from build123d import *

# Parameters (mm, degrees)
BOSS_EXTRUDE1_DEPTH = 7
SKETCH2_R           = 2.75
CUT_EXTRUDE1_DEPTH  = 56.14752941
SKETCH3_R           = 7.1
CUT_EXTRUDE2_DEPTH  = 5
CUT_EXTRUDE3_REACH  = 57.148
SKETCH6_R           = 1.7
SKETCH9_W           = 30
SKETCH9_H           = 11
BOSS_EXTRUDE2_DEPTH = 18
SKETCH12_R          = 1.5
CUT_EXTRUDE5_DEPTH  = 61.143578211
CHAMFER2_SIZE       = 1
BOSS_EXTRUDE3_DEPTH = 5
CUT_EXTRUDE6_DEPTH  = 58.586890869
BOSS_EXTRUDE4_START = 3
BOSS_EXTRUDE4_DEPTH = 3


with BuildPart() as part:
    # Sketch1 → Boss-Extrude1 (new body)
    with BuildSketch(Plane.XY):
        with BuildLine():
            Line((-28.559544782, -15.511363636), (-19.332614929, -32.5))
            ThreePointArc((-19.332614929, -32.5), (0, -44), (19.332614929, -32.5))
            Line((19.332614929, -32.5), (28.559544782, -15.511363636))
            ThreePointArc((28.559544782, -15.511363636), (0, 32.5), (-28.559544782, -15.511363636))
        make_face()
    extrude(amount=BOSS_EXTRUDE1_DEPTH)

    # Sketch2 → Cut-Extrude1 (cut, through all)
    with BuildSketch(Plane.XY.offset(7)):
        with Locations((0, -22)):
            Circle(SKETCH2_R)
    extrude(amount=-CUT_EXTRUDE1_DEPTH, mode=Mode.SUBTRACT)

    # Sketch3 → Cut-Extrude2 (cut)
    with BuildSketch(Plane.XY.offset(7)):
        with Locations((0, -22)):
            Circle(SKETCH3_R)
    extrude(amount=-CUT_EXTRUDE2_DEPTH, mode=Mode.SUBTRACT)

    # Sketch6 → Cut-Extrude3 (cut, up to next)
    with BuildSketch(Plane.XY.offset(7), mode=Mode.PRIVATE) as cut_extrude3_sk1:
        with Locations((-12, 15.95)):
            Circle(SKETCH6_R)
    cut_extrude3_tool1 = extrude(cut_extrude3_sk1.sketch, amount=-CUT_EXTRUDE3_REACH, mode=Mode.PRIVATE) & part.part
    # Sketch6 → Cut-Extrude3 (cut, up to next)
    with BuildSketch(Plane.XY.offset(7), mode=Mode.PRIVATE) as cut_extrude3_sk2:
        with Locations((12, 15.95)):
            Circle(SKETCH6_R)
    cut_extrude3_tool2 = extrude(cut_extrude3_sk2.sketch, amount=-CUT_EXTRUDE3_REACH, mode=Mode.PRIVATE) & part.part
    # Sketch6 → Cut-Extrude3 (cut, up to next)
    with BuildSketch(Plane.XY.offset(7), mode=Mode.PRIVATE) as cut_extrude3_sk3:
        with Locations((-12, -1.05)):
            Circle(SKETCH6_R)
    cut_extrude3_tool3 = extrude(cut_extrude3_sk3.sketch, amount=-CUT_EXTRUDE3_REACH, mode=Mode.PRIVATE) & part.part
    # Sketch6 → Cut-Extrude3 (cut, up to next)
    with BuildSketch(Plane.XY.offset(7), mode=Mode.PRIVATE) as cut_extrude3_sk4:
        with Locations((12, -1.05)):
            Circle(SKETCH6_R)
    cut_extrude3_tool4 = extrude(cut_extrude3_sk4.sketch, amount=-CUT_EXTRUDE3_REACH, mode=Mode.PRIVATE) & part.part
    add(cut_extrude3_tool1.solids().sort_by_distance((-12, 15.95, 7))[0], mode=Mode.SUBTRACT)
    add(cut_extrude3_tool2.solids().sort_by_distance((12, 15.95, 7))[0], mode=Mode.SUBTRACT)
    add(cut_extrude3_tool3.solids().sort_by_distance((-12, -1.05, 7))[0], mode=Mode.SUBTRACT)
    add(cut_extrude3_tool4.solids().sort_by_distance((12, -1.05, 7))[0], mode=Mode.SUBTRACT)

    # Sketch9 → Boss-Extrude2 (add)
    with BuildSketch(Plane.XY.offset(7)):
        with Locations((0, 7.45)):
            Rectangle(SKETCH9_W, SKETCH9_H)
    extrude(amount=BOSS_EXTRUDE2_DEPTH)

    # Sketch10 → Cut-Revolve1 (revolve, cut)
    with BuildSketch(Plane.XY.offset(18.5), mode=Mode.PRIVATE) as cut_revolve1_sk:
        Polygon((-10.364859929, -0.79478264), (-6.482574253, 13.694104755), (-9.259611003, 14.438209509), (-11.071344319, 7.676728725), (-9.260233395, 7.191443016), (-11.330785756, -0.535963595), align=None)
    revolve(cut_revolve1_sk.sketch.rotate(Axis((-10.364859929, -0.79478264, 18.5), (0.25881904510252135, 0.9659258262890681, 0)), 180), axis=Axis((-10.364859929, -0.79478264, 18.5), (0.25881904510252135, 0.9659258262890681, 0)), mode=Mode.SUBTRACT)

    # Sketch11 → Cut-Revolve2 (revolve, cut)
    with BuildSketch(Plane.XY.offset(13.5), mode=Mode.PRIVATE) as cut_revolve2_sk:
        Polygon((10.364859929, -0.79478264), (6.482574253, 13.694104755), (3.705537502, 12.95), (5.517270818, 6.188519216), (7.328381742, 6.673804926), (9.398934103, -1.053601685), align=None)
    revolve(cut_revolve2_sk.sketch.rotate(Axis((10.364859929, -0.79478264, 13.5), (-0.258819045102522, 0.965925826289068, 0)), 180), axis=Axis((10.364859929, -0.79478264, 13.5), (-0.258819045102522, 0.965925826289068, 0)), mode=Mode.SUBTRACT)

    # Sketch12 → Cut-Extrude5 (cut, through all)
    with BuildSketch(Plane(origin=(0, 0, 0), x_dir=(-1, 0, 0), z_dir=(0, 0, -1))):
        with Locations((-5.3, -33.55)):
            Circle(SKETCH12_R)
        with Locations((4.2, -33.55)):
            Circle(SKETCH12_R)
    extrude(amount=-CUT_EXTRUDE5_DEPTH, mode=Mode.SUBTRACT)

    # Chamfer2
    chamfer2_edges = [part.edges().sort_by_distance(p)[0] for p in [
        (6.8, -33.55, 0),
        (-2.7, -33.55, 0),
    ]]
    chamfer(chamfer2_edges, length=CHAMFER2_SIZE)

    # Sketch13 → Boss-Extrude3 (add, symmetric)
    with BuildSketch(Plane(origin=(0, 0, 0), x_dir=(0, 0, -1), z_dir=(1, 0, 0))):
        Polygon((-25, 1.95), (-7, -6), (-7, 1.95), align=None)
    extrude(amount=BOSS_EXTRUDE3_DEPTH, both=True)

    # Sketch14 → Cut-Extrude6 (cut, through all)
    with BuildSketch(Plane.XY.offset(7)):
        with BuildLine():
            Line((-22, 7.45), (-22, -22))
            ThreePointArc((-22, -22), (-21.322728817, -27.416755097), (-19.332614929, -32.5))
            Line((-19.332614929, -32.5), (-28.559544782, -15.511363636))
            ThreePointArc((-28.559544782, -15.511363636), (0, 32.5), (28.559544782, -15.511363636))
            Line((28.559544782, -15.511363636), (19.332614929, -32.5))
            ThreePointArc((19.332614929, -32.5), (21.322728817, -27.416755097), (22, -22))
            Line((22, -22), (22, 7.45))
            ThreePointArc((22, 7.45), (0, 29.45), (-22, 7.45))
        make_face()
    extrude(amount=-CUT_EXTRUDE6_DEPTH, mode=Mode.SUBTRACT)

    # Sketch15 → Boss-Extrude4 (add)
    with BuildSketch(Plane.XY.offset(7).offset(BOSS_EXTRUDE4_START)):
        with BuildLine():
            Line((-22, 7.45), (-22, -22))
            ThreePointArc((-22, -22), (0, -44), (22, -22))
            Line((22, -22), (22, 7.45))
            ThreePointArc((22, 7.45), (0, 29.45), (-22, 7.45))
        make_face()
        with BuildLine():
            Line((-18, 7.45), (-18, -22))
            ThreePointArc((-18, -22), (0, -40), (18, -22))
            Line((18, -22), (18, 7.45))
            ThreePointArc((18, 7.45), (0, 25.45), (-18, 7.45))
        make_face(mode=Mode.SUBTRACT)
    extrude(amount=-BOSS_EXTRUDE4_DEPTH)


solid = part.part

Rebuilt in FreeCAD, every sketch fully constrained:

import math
import FreeCAD as App
import Part
import Sketcher

V = App.Vector
Q = App.Units.Quantity


def edges_at(feature, points):
    """Names of the edges that pass closest to the given points."""
    edges = feature.Shape.Edges
    near = lambda p: min(range(len(edges)), key=lambda i: edges[i].distToShape(Part.Vertex(*p))[0])
    return sorted({f"Edge{near(p) + 1}" for p in points})

doc = App.newDocument("Part")
body = doc.addObject("PartDesign::Body", "Body")

sketch1 = body.newObject("Sketcher::SketchObject", "Sketch")
sketch1.AttachmentSupport = (doc.getObject("XY_Plane"), [""])
sketch1.MapMode = "FlatFace"
sketch1.addGeometry([
    Part.LineSegment(V(-29, -16, 0), V(-19, -32, 0)),
    Part.ArcOfCircle(Part.Circle(V(0, -22, 0), V(0, 0, 1), 22), math.radians(-151), math.radians(-29)),
    Part.LineSegment(V(19, -32, 0), V(29, -16, 0)),
    Part.ArcOfCircle(Part.Circle(V(0, 0, 0), V(0, 0, 1), 32), math.radians(-29), math.radians(209)),
], False)
sketch1.addConstraint([
    Sketcher.Constraint("Tangent", 0, 2, 1, 1),
    Sketcher.Constraint("Tangent", 1, 2, 2, 1),
    Sketcher.Constraint("Tangent", 2, 2, 3, 1),
    Sketcher.Constraint("Tangent", 3, 2, 0, 1),
    Sketcher.Constraint("Coincident", 3, 3, -1, 1),
    Sketcher.Constraint("PointOnObject", 1, 3, -2),
    Sketcher.Constraint("Radius", 1, 22.0),
    Sketcher.Constraint("Radius", 3, 32.5),
    Sketcher.Constraint("DistanceY", 1, 3, -1, 1, 22.0),
])
pad1 = body.newObject("PartDesign::Pad", "Pad")
pad1.Profile = sketch1
pad1.Length = 7

sketch2 = body.newObject("Sketcher::SketchObject", "Sketch001")
sketch2.AttachmentSupport = (doc.getObject("XY_Plane"), [""])
sketch2.MapMode = "FlatFace"
sketch2.AttachmentOffset = App.Placement(V(0, 0, 7), App.Rotation())
sketch2.addGeometry(Part.Circle(V(0, -22, 0), V(0, 0, 1), 2.8), False)
sketch2.addConstraint([
    Sketcher.Constraint("PointOnObject", 0, 3, -2),
    Sketcher.Constraint("Diameter", 0, 5.5),
    Sketcher.Constraint("DistanceY", 0, 3, -1, 1, 22.0),
])
pocket1 = body.newObject("PartDesign::Pocket", "Pocket")
pocket1.Profile = sketch2
pocket1.Type = "ThroughAll"

sketch3 = body.newObject("Sketcher::SketchObject", "Sketch002")
sketch3.AttachmentSupport = (doc.getObject("XY_Plane"), [""])
sketch3.MapMode = "FlatFace"
sketch3.AttachmentOffset = App.Placement(V(0, 0, 7), App.Rotation())
sketch3.addGeometry(Part.Circle(V(0, -22, 0), V(0, 0, 1), 7), False)
sketch3.addConstraint([
    Sketcher.Constraint("PointOnObject", 0, 3, -2),
    Sketcher.Constraint("Diameter", 0, 14.2),
    Sketcher.Constraint("DistanceY", 0, 3, -1, 1, 22.0),
])
pocket2 = body.newObject("PartDesign::Pocket", "Pocket001")
pocket2.Profile = sketch3
pocket2.Length = 5

sketch4 = body.newObject("Sketcher::SketchObject", "Sketch003")
sketch4.AttachmentSupport = (doc.getObject("XY_Plane"), [""])
sketch4.MapMode = "FlatFace"
sketch4.AttachmentOffset = App.Placement(V(0, 0, 7), App.Rotation())
sketch4.addGeometry(Part.Circle(V(-12, 15.9, 0), V(0, 0, 1), 1.7), False)
sketch4.addConstraint([
    Sketcher.Constraint("Diameter", 0, 3.4),
    Sketcher.Constraint("DistanceX", 0, 3, -1, 1, 12.0),
    Sketcher.Constraint("DistanceY", -1, 1, 0, 3, 15.95),
])
pocket3 = body.newObject("PartDesign::Pocket", "Pocket002")
pocket3.Profile = sketch4
pocket3.Type = "UpToFirst"

sketch5 = body.newObject("Sketcher::SketchObject", "Sketch004")
sketch5.AttachmentSupport = (doc.getObject("XY_Plane"), [""])
sketch5.MapMode = "FlatFace"
sketch5.AttachmentOffset = App.Placement(V(0, 0, 7), App.Rotation())
sketch5.addGeometry(Part.Circle(V(12, 15.9, 0), V(0, 0, 1), 1.7), False)
sketch5.addConstraint([
    Sketcher.Constraint("Diameter", 0, 3.4),
    Sketcher.Constraint("DistanceX", -1, 1, 0, 3, 12.0),
    Sketcher.Constraint("DistanceY", -1, 1, 0, 3, 15.95),
])
pocket4 = body.newObject("PartDesign::Pocket", "Pocket003")
pocket4.Profile = sketch5
pocket4.Type = "UpToFirst"

sketch6 = body.newObject("Sketcher::SketchObject", "Sketch005")
sketch6.AttachmentSupport = (doc.getObject("XY_Plane"), [""])
sketch6.MapMode = "FlatFace"
sketch6.AttachmentOffset = App.Placement(V(0, 0, 7), App.Rotation())
sketch6.addGeometry(Part.Circle(V(-12, -1.1, 0), V(0, 0, 1), 1.7), False)
sketch6.addConstraint([
    Sketcher.Constraint("Diameter", 0, 3.4),
    Sketcher.Constraint("DistanceX", 0, 3, -1, 1, 12.0),
    Sketcher.Constraint("DistanceY", 0, 3, -1, 1, 1.05),
])
pocket5 = body.newObject("PartDesign::Pocket", "Pocket004")
pocket5.Profile = sketch6
pocket5.Type = "UpToFirst"

sketch7 = body.newObject("Sketcher::SketchObject", "Sketch006")
sketch7.AttachmentSupport = (doc.getObject("XY_Plane"), [""])
sketch7.MapMode = "FlatFace"
sketch7.AttachmentOffset = App.Placement(V(0, 0, 7), App.Rotation())
sketch7.addGeometry(Part.Circle(V(12, -1.1, 0), V(0, 0, 1), 1.7), False)
sketch7.addConstraint([
    Sketcher.Constraint("Diameter", 0, 3.4),
    Sketcher.Constraint("DistanceX", -1, 1, 0, 3, 12.0),
    Sketcher.Constraint("DistanceY", 0, 3, -1, 1, 1.05),
])
pocket6 = body.newObject("PartDesign::Pocket", "Pocket005")
pocket6.Profile = sketch7
pocket6.Type = "UpToFirst"

sketch8 = body.newObject("Sketcher::SketchObject", "Sketch007")
sketch8.AttachmentSupport = (doc.getObject("XY_Plane"), [""])
sketch8.MapMode = "FlatFace"
sketch8.AttachmentOffset = App.Placement(V(0, 0, 7), App.Rotation())
sketch8.addGeometry([
    Part.LineSegment(V(-15, 13, 0), V(-15, 2, 0)),
    Part.LineSegment(V(-15, 2, 0), V(15, 2, 0)),
    Part.LineSegment(V(15, 2, 0), V(15, 13, 0)),
    Part.LineSegment(V(15, 13, 0), V(-15, 13, 0)),
], False)
sketch8.addConstraint([
    Sketcher.Constraint("Coincident", 0, 2, 1, 1),
    Sketcher.Constraint("Coincident", 1, 2, 2, 1),
    Sketcher.Constraint("Coincident", 2, 2, 3, 1),
    Sketcher.Constraint("Coincident", 3, 2, 0, 1),
    Sketcher.Constraint("Vertical", 0),
    Sketcher.Constraint("Horizontal", 1),
    Sketcher.Constraint("Vertical", 2),
    Sketcher.Constraint("Horizontal", 3),
    Sketcher.Constraint("DistanceX", 1, 1, 1, 2, 30.0),
    Sketcher.Constraint("DistanceY", 0, 2, 0, 1, 11.0),
    Sketcher.Constraint("DistanceX", 0, 2, -1, 1, 15.0),
    Sketcher.Constraint("DistanceY", -1, 1, 0, 2, 1.95),
])
pad2 = body.newObject("PartDesign::Pad", "Pad001")
pad2.Profile = sketch8
pad2.Length = 18

sketch9 = body.newObject("Sketcher::SketchObject", "Sketch008")
sketch9.AttachmentSupport = (doc.getObject("XY_Plane"), [""])
sketch9.MapMode = "FlatFace"
sketch9.AttachmentOffset = App.Placement(V(0, 0, 18.5), App.Rotation())
sketch9.addGeometry([
    Part.LineSegment(V(-10.4, -0.8, 0), V(-6.5, 13.7, 0)),
    Part.LineSegment(V(-6.5, 13.7, 0), V(-9.3, 14.4, 0)),
    Part.LineSegment(V(-9.3, 14.4, 0), V(-11.1, 7.7, 0)),
    Part.LineSegment(V(-11.1, 7.7, 0), V(-9.3, 7.2, 0)),
    Part.LineSegment(V(-9.3, 7.2, 0), V(-11.3, -0.5, 0)),
    Part.LineSegment(V(-11.3, -0.5, 0), V(-10.4, -0.8, 0)),
], False)
sketch9.addGeometry(Part.LineSegment(V(-10.4, -0.8, 0), V(-6.5, 13.7, 0)), True)
sketch9.addConstraint([
    Sketcher.Constraint("Coincident", 0, 2, 1, 1),
    Sketcher.Constraint("Coincident", 1, 2, 2, 1),
    Sketcher.Constraint("Coincident", 2, 2, 3, 1),
    Sketcher.Constraint("Coincident", 3, 2, 4, 1),
    Sketcher.Constraint("Coincident", 4, 2, 5, 1),
    Sketcher.Constraint("Coincident", 5, 2, 0, 1),
    Sketcher.Constraint("Coincident", 6, 1, 5, 2),
    Sketcher.Constraint("Coincident", 6, 2, 0, 2),
    Sketcher.Constraint("Perpendicular", 0, 1),
    Sketcher.Constraint("Perpendicular", 1, 2),
    Sketcher.Constraint("Perpendicular", 2, 3),
    Sketcher.Constraint("Perpendicular", 3, 4),
    Sketcher.Constraint("Perpendicular", 4, 5),
    Sketcher.Constraint("Angle", 0, Q("75 deg")),
    Sketcher.Constraint("Distance", 0, 15.0),
    Sketcher.Constraint("Distance", 2, 7.0),
    Sketcher.Constraint("Distance", 5, 1.0),
    Sketcher.Constraint("Distance", 1, 2.875),
    Sketcher.Constraint("DistanceX", 1, 2, -1, 1, 9.259611),
    Sketcher.Constraint("DistanceY", -1, 1, 1, 2, 14.43821),
])
groove = body.newObject("PartDesign::Groove", "Groove")
groove.Profile = sketch9
groove.ReferenceAxis = (sketch9, ["Axis0"])
groove.Angle = 360

sketch10 = body.newObject("Sketcher::SketchObject", "Sketch009")
sketch10.AttachmentSupport = (doc.getObject("XY_Plane"), [""])
sketch10.MapMode = "FlatFace"
sketch10.AttachmentOffset = App.Placement(V(0, 0, 13.5), App.Rotation())
sketch10.addGeometry([
    Part.LineSegment(V(10.4, -0.8, 0), V(6.5, 13.7, 0)),
    Part.LineSegment(V(6.5, 13.7, 0), V(3.7, 12.9, 0)),
    Part.LineSegment(V(3.7, 12.9, 0), V(5.5, 6.2, 0)),
    Part.LineSegment(V(5.5, 6.2, 0), V(7.3, 6.7, 0)),
    Part.LineSegment(V(7.3, 6.7, 0), V(9.4, -1.1, 0)),
    Part.LineSegment(V(9.4, -1.1, 0), V(10.4, -0.8, 0)),
], False)
sketch10.addGeometry(Part.LineSegment(V(10.4, -0.8, 0), V(6.5, 13.7, 0)), True)
sketch10.addConstraint([
    Sketcher.Constraint("Coincident", 0, 2, 1, 1),
    Sketcher.Constraint("Coincident", 1, 2, 2, 1),
    Sketcher.Constraint("Coincident", 2, 2, 3, 1),
    Sketcher.Constraint("Coincident", 3, 2, 4, 1),
    Sketcher.Constraint("Coincident", 4, 2, 5, 1),
    Sketcher.Constraint("Coincident", 5, 2, 0, 1),
    Sketcher.Constraint("Coincident", 6, 1, 5, 2),
    Sketcher.Constraint("Coincident", 6, 2, 0, 2),
    Sketcher.Constraint("Perpendicular", 0, 1),
    Sketcher.Constraint("Perpendicular", 1, 2),
    Sketcher.Constraint("Perpendicular", 2, 3),
    Sketcher.Constraint("Perpendicular", 3, 4),
    Sketcher.Constraint("Perpendicular", 4, 5),
    Sketcher.Constraint("Angle", 0, Q("105 deg")),
    Sketcher.Constraint("Distance", 0, 15.0),
    Sketcher.Constraint("Distance", 2, 7.0),
    Sketcher.Constraint("Distance", 5, 1.0),
    Sketcher.Constraint("DistanceY", -1, 1, 1, 2, 12.95),
    Sketcher.Constraint("Distance", 1, 2.875),
    Sketcher.Constraint("DistanceX", -1, 1, 2, 2, 5.517271),
])
groove2 = body.newObject("PartDesign::Groove", "Groove001")
groove2.Profile = sketch10
groove2.ReferenceAxis = (sketch10, ["Axis0"])
groove2.Angle = 360

sketch11 = body.newObject("Sketcher::SketchObject", "Sketch010")
sketch11.AttachmentSupport = (doc.getObject("XY_Plane"), [""])
sketch11.MapMode = "FlatFace"
sketch11.addGeometry([
    Part.Circle(V(5.3, -33.5, 0), V(0, 0, 1), 1.5),
    Part.Circle(V(-4.2, -33.5, 0), V(0, 0, 1), 1.5),
], False)
sketch11.addConstraint([
    Sketcher.Constraint("Equal", 0, 1),
    Sketcher.Constraint("Horizontal", 0, 3, 1, 3),
    Sketcher.Constraint("Diameter", 0, 3.0),
    Sketcher.Constraint("DistanceX", -1, 1, 0, 3, 5.3),
    Sketcher.Constraint("DistanceX", 1, 3, -1, 1, 4.2),
    Sketcher.Constraint("DistanceY", 0, 3, -1, 1, 33.55),
])
pocket7 = body.newObject("PartDesign::Pocket", "Pocket006")
pocket7.Profile = sketch11
pocket7.Type = "ThroughAll"
pocket7.Reversed = True
doc.recompute()

chamfer = body.newObject("PartDesign::Chamfer", "Chamfer")
chamfer.Base = (pocket7, edges_at(pocket7, [(6.8, -33.55, 0), (-2.7, -33.55, 0)]))
chamfer.Size = 1

sketch12 = body.newObject("Sketcher::SketchObject", "Sketch011")
sketch12.AttachmentSupport = (doc.getObject("YZ_Plane"), [""])
sketch12.MapMode = "FlatFace"
sketch12.addGeometry([
    Part.LineSegment(V(2, 25, 0), V(-6, 7, 0)),
    Part.LineSegment(V(-6, 7, 0), V(2, 7, 0)),
    Part.LineSegment(V(2, 7, 0), V(2, 25, 0)),
], False)
sketch12.addConstraint([
    Sketcher.Constraint("Coincident", 0, 2, 1, 1),
    Sketcher.Constraint("Coincident", 1, 2, 2, 1),
    Sketcher.Constraint("Coincident", 2, 2, 0, 1),
    Sketcher.Constraint("Horizontal", 1),
    Sketcher.Constraint("Vertical", 2),
    Sketcher.Constraint("DistanceY", 2, 1, 2, 2, 18.0),
    Sketcher.Constraint("DistanceX", 0, 2, -1, 1, 6.0),
    Sketcher.Constraint("DistanceY", -1, 1, 0, 2, 7.0),
    Sketcher.Constraint("DistanceX", 1, 1, 1, 2, 7.95),
])
pad3 = body.newObject("PartDesign::Pad", "Pad002")
pad3.Profile = sketch12
pad3.Length = 10
pad3.Midplane = True

sketch13 = body.newObject("Sketcher::SketchObject", "Sketch012")
sketch13.AttachmentSupport = (doc.getObject("XY_Plane"), [""])
sketch13.MapMode = "FlatFace"
sketch13.AttachmentOffset = App.Placement(V(0, 0, 7), App.Rotation())
sketch13.addGeometry([
    Part.LineSegment(V(-22, -22, 0), V(-22, 7, 0)),
    Part.ArcOfCircle(Part.Circle(V(0, 7, 0), V(0, 0, 1), 22), math.radians(0), math.radians(180)),
    Part.LineSegment(V(22, 7, 0), V(22, -22, 0)),
    Part.ArcOfCircle(Part.Circle(V(0, -22, 0), V(0, 0, 1), 22), math.radians(-29), math.radians(0)),
    Part.LineSegment(V(19, -32, 0), V(29, -16, 0)),
    Part.ArcOfCircle(Part.Circle(V(0, 0, 0), V(0, 0, 1), 32), math.radians(-29), math.radians(209)),
    Part.LineSegment(V(-29, -16, 0), V(-19, -32, 0)),
    Part.ArcOfCircle(Part.Circle(V(0, -22, 0), V(0, 0, 1), 22), math.radians(-180), math.radians(-151)),
], False)
sketch13.addConstraint([
    Sketcher.Constraint("Tangent", 0, 2, 1, 2),
    Sketcher.Constraint("Tangent", 1, 1, 2, 1),
    Sketcher.Constraint("Tangent", 2, 2, 3, 2),
    Sketcher.Constraint("Tangent", 3, 1, 4, 1),
    Sketcher.Constraint("Tangent", 4, 2, 5, 1),
    Sketcher.Constraint("Tangent", 5, 2, 6, 1),
    Sketcher.Constraint("Tangent", 6, 2, 7, 2),
    Sketcher.Constraint("Tangent", 7, 1, 0, 1),
    Sketcher.Constraint("Vertical", 0),
    Sketcher.Constraint("Vertical", 2),
    Sketcher.Constraint("Coincident", 5, 3, -1, 1),
    Sketcher.Constraint("Coincident", 7, 3, 3, 3),
    Sketcher.Constraint("Equal", 1, 3),
    Sketcher.Constraint("PointOnObject", 1, 3, -2),
    Sketcher.Constraint("Radius", 1, 22.0),
    Sketcher.Constraint("Radius", 5, 32.5),
    Sketcher.Constraint("DistanceY", 3, 3, -1, 1, 22.0),
    Sketcher.Constraint("DistanceY", 0, 1, 0, 2, 29.45),
])
pocket8 = body.newObject("PartDesign::Pocket", "Pocket007")
pocket8.Profile = sketch13
pocket8.Type = "ThroughAll"

sketch14 = body.newObject("Sketcher::SketchObject", "Sketch013")
sketch14.AttachmentSupport = (doc.getObject("XY_Plane"), [""])
sketch14.MapMode = "FlatFace"
sketch14.AttachmentOffset = App.Placement(V(0, 0, 10), App.Rotation())
sketch14.addGeometry([
    Part.LineSegment(V(-22, 7, 0), V(-22, -22, 0)),
    Part.ArcOfCircle(Part.Circle(V(0, -22, 0), V(0, 0, 1), 22), math.radians(180), math.radians(360)),
    Part.LineSegment(V(22, -22, 0), V(22, 7, 0)),
    Part.ArcOfCircle(Part.Circle(V(0, 7, 0), V(0, 0, 1), 22), math.radians(0), math.radians(180)),
    Part.LineSegment(V(-18, -22, 0), V(-18, 7, 0)),
    Part.ArcOfCircle(Part.Circle(V(0, 7, 0), V(0, 0, 1), 18), math.radians(0), math.radians(180)),
    Part.LineSegment(V(18, 7, 0), V(18, -22, 0)),
    Part.ArcOfCircle(Part.Circle(V(0, -22, 0), V(0, 0, 1), 18), math.radians(180), math.radians(360)),
], False)
sketch14.addConstraint([
    Sketcher.Constraint("Tangent", 0, 2, 1, 1),
    Sketcher.Constraint("Tangent", 1, 2, 2, 1),
    Sketcher.Constraint("Tangent", 2, 2, 3, 1),
    Sketcher.Constraint("Tangent", 3, 2, 0, 1),
    Sketcher.Constraint("Tangent", 4, 2, 5, 2),
    Sketcher.Constraint("Tangent", 5, 1, 6, 1),
    Sketcher.Constraint("Tangent", 6, 2, 7, 2),
    Sketcher.Constraint("Tangent", 7, 1, 4, 1),
    Sketcher.Constraint("Vertical", 0),
    Sketcher.Constraint("Vertical", 2),
    Sketcher.Constraint("Vertical", 4),
    Sketcher.Constraint("Vertical", 6),
    Sketcher.Constraint("Coincident", 5, 3, 3, 3),
    Sketcher.Constraint("PointOnObject", 1, 3, -2),
    Sketcher.Constraint("Horizontal", 7, 3, 0, 2),
    Sketcher.Constraint("Radius", 1, 22.0),
    Sketcher.Constraint("Radius", 5, 18.0),
    Sketcher.Constraint("DistanceY", 1, 3, -1, 1, 22.0),
    Sketcher.Constraint("DistanceY", 0, 2, 0, 1, 29.45),
])
pad4 = body.newObject("PartDesign::Pad", "Pad003")
pad4.Profile = sketch14
pad4.Length = 3
pad4.Reversed = True

doc.recompute()
